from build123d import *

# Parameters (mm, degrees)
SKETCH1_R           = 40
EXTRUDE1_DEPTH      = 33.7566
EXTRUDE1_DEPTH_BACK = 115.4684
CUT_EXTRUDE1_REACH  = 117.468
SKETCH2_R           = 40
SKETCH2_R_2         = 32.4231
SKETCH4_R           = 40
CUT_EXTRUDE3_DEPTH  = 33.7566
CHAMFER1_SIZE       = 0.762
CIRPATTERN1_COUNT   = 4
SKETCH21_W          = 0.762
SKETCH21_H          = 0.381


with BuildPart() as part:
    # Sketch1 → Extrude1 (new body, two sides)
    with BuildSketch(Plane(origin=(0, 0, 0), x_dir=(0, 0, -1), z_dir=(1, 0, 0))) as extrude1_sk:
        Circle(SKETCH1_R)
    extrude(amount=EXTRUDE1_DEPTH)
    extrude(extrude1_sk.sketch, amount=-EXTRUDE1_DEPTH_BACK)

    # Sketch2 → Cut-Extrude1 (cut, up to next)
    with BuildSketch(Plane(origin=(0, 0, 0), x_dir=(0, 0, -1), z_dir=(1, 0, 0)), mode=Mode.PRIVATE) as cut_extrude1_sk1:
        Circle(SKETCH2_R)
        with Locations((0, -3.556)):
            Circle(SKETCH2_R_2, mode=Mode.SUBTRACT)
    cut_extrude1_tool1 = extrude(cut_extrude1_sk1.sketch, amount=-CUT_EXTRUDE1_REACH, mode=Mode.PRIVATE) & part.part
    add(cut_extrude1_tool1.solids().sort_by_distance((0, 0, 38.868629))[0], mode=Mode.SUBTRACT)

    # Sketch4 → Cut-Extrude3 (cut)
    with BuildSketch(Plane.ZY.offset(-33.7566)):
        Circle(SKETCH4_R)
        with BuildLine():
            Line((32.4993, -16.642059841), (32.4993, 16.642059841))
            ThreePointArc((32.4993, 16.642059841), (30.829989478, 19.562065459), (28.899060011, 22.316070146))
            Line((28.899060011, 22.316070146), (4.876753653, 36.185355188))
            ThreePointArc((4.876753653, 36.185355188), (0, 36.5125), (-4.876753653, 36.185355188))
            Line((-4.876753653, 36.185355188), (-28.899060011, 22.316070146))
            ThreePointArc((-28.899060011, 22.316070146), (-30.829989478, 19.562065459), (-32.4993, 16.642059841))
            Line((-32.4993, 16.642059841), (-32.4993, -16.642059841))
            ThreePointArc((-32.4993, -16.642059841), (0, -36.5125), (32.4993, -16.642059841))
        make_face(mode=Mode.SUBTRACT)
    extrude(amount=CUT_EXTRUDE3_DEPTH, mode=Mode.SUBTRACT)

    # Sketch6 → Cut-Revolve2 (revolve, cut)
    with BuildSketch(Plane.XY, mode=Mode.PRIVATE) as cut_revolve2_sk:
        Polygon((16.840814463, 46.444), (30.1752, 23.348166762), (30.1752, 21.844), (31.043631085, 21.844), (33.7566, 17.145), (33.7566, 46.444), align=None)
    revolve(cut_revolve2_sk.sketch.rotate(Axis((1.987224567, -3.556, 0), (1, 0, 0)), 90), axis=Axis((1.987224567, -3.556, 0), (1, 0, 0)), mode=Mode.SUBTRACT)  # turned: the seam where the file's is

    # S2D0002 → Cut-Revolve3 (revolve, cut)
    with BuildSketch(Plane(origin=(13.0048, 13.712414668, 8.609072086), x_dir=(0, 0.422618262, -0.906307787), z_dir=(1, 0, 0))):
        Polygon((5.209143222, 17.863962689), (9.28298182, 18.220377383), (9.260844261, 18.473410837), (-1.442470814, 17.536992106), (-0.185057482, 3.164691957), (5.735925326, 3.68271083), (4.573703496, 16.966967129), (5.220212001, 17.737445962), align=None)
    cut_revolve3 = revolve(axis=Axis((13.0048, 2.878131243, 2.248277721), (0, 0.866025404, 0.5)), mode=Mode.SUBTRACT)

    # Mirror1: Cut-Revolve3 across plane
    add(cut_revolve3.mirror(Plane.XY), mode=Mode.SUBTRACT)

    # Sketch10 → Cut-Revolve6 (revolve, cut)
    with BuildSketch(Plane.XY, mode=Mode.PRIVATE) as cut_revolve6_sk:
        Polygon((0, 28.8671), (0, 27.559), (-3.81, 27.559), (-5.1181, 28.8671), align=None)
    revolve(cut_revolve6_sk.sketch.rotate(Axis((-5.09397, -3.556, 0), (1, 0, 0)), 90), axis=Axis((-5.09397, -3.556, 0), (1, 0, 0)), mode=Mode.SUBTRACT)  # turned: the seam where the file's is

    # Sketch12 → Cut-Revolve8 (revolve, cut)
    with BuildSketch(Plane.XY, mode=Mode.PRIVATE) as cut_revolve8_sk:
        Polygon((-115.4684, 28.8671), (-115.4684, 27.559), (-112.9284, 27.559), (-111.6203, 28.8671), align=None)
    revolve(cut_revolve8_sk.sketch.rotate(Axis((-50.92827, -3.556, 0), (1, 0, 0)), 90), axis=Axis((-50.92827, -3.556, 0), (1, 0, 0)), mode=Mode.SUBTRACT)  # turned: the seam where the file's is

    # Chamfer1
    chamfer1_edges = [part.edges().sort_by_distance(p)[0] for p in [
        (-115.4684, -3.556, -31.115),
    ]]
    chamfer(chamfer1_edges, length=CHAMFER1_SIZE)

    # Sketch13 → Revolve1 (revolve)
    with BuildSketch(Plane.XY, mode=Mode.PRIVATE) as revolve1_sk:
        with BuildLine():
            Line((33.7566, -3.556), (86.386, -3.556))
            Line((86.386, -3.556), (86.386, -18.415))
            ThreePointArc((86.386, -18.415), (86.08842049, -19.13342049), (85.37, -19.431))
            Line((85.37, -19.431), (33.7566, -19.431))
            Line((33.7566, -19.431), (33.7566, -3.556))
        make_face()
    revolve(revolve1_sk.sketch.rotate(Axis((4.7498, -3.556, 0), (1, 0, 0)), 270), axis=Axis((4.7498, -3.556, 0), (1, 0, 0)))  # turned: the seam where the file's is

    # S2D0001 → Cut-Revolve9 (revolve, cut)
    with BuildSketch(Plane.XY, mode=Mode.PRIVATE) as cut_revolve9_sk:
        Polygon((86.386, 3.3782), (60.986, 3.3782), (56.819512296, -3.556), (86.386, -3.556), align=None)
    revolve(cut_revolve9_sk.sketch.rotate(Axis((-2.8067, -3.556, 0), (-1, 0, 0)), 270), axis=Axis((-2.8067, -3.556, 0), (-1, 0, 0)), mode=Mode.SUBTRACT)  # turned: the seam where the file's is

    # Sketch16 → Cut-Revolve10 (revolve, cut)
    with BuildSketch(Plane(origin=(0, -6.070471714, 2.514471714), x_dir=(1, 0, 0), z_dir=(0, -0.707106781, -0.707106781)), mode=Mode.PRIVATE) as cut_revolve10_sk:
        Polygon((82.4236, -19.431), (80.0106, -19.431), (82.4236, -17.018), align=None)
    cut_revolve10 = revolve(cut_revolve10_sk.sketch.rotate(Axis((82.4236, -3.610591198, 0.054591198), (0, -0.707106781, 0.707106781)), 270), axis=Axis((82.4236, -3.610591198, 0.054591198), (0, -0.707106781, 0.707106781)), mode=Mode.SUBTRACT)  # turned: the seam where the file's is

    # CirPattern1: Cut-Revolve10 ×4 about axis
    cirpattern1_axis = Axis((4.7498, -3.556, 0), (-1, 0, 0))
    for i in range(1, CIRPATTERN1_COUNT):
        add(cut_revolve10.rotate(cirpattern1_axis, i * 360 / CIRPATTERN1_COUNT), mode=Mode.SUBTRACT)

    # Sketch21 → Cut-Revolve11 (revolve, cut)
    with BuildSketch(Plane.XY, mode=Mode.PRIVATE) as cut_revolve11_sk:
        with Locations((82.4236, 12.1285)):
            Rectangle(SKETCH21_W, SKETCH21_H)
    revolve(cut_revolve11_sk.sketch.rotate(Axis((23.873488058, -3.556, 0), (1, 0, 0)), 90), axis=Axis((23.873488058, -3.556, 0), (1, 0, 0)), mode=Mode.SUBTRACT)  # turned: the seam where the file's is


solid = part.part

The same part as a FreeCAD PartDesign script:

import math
import FreeCAD as App
import Part
import Sketcher

V = App.Vector
Q = App.Units.Quantity


def edges_at(feature, points):
    """Names of the edges that pass closest to the given points."""
    edges = feature.Shape.Edges
    near = lambda p: min(range(len(edges)), key=lambda i: edges[i].distToShape(Part.Vertex(*p))[0])
    return sorted({f"Edge{near(p) + 1}" for p in points})


def add_polygon(sketch, points):
    """Adds a closed chain of lines whose ends are joined by coincident constraints."""
    first, n = sketch.GeometryCount, len(points)
    for a, b in zip(points, points[1:] + points[:1]):
        sketch.addGeometry(Part.LineSegment(App.Vector(*a, 0), App.Vector(*b, 0)), False)
    for i in range(n):
        sketch.addConstraint(Sketcher.Constraint("Coincident", first + i, 2, first + (i + 1) % n, 1))

doc = App.newDocument("Part")
params = doc.addObject("Spreadsheet::Sheet", "Params")
for row, (alias, value) in enumerate([
    ("pad1_length", "1.329 in"),
    ("pad1_length2", "4.546 in"),
    ("sketch2_diameter", "2.553 in"),
    ("sketch3_radius", "1.4375 in"),
    ("pocket2_length", "1.329 in"),
    ("groove_angle", "360 deg"),
    ("sketch5_length", "0.01 in"),
    ("sketch5_length2", "0.161 in"),
    ("sketch5_length3", "0.423 in"),
    ("sketch5_length4", "0.568 in"),
    ("sketch5_length5", "0.234 in"),
    ("groove2_angle", "360 deg"),
    ("sketch6_width", "0.15 in"),
    ("groove3_angle", "360 deg"),
    ("sketch7_width", "0.1 in"),
    ("groove4_angle", "360 deg"),
    ("chamfer_size", "0.03 in"),
    ("sketch8_radius", "0.04 in"),
    ("sketch8_height", "0.625 in"),
    ("revolution_angle", "360 deg"),
    ("sketch9_width", "1 in"),
    ("sketch9_height", "0.273 in"),
    ("groove5_angle", "360 deg"),
    ("sketch10_width", "0.095 in"),
    ("groove6_angle", "360 deg"),
    ("sketch11_width", "0.03 in"),
    ("sketch11_height", "0.015 in"),
    ("groove7_angle", "360 deg"),
], start=1):
    params.set(f"A{row}", alias)
    params.set(f"B{row}", "=" + value)
    params.setAlias(f"B{row}", alias)

body = doc.addObject("PartDesign::Body", "Body")

# Sketch on YZ plane
sketch1 = body.newObject("Sketcher::SketchObject", "Sketch")
sketch1.AttachmentSupport = (doc.getObject("YZ_Plane"), [""])
sketch1.MapMode = "FlatFace"
sketch1.addGeometry(Part.Circle(V(0, 0, 0), V(0, 0, 1), 40), False)
sketch1.addConstraint([
    Sketcher.Constraint("Coincident", 0, 3, -1, 1),
    Sketcher.Constraint("Diameter", 0, Q("80 mm")),
])
pad1 = body.newObject("PartDesign::Pad", "Pad")
pad1.Profile = sketch1
pad1.Type = "TwoLengths"
pad1.setExpression("Length", "Params.pad1_length")
pad1.setExpression("Length2", "Params.pad1_length2")

# Sketch on YZ plane
sketch2 = body.newObject("Sketcher::SketchObject", "Sketch001")
sketch2.AttachmentSupport = (doc.getObject("YZ_Plane"), [""])
sketch2.MapMode = "FlatFace"
sketch2.addGeometry([
    Part.Circle(V(0, 0, 0), V(0, 0, 1), 40),
    Part.Circle(V(-4, 0, 0), V(0, 0, 1), 32),
], False)
sketch2.addConstraint([
    Sketcher.Constraint("Coincident", 0, 3, -1, 1),
    Sketcher.Constraint("PointOnObject", 1, 3, -1),
    Sketcher.Constraint("Diameter", 1, Q("2.553 in")),
    Sketcher.Constraint("Diameter", 0, Q("80 mm")),
    Sketcher.Constraint("DistanceX", 1, 3, -1, 1, Q("0.14 in")),
])
sketch2.setExpression("Constraints[2]", "Params.sketch2_diameter")
pocket1 = body.newObject("PartDesign::Pocket", "Pocket")
pocket1.Profile = sketch2
pocket1.Type = "UpToFirst"

# Sketch on YZ plane
sketch3 = body.newObject("Sketcher::SketchObject", "Sketch002")
sketch3.AttachmentSupport = (doc.getObject("YZ_Plane"), [""])
sketch3.MapMode = "FlatFace"
sketch3.AttachmentOffset = App.Placement(V(0, 0, 1.329 * 25.4), App.Rotation())
sketch3.addGeometry([
    Part.Circle(V(0, 0, 0), V(0, 0, 1), 40),  # 0
    Part.LineSegment(V(17, 32, 0), V(-17, 32, 0)),  # 1
    Part.ArcOfCircle(Part.Circle(V(0, 0, 0), V(0, 0, 1), 37), math.radians(117), math.radians(243)),  # 2
    Part.LineSegment(V(-17, -32, 0), V(17, -32, 0)),  # 3
    Part.ArcOfCircle(Part.Circle(V(0, 0, 0), V(0, 0, 1), 37), math.radians(-62.88), math.radians(-52.32)),  # 4
    Part.LineSegment(V(22, -29, 0), V(36, -5, 0)),  # 5
    Part.ArcOfCircle(Part.Circle(V(0, 0, 0), V(0, 0, 1), 37), math.radians(-7.68), math.radians(7.68)),  # 6
    Part.LineSegment(V(36, 5, 0), V(22, 29, 0)),  # 7
    Part.ArcOfCircle(Part.Circle(V(0, 0, 0), V(0, 0, 1), 37), math.radians(52.32), math.radians(62.88)),  # 8
], False)
sketch3.addConstraint([
    Sketcher.Constraint("Coincident", 1, 2, 2, 1),
    Sketcher.Constraint("Coincident", 2, 2, 3, 1),
    Sketcher.Constraint("Coincident", 3, 2, 4, 1),
    Sketcher.Constraint("Coincident", 4, 2, 5, 1),
    Sketcher.Constraint("Coincident", 5, 2, 6, 1),
    Sketcher.Constraint("Coincident", 6, 2, 7, 1),
    Sketcher.Constraint("Coincident", 7, 2, 8, 1),
    Sketcher.Constraint("Coincident", 8, 2, 1, 1),
    Sketcher.Constraint("Horizontal", 1),
    Sketcher.Constraint("Horizontal", 3),
    Sketcher.Constraint("Coincident", 0, 3, -1, 1),
    Sketcher.Constraint("Coincident", 2, 3, -1, 1),
    Sketcher.Constraint("Coincident", 4, 3, -1, 1),
    Sketcher.Constraint("Coincident", 6, 3, -1, 1),
    Sketcher.Constraint("Coincident", 8, 3, -1, 1),
    Sketcher.Constraint("Equal", 2, 4),
    Sketcher.Constraint("Equal", 4, 6),
    Sketcher.Constraint("Equal", 6, 8),
    Sketcher.Constraint("Vertical", 1, 2, 2, 2),
    Sketcher.Constraint("Vertical", 5, 2, 6, 2),
    Sketcher.Constraint("Vertical", 4, 2, 7, 2),
    Sketcher.Constraint("Angle", 5, Q("60 deg")),
    Sketcher.Constraint("Radius", 2, Q("1.4375 in")),
    Sketcher.Constraint("Diameter", 0, Q("80 mm")),
    Sketcher.Constraint("DistanceY", -1, 1, 1, 2, Q("1.2795 in")),
    Sketcher.Constraint("Distance", 5, Q("27.73857 mm")),
])
sketch3.setExpression("Constraints[22]", "Params.sketch3_radius")
pocket2 = body.newObject("PartDesign::Pocket", "Pocket001")
pocket2.Profile = sketch3
pocket2.setExpression("Length", "Params.pocket2_length")

# Sketch on XY plane
sketch4 = body.newObject("Sketcher::SketchObject", "Sketch003")
sketch4.AttachmentSupport = (doc.getObject("XY_Plane"), [""])
sketch4.MapMode = "FlatFace"
add_polygon(sketch4, [(16.8, 46.4), (30.2, 23.3), (30.2, 21.8), (31, 21.8), (33.8, 17.1), (33.8, 46.4)])  # lines 0-5
sketch4.addGeometry(Part.LineSegment(V(16.8, -3.6, 0), V(33.8, -3.6, 0)), True)  # axis
sketch4.addConstraint([
    Sketcher.Constraint("Vertical", 1),
    Sketcher.Constraint("Horizontal", 2),
    Sketcher.Constraint("Vertical", 4),
    Sketcher.Constraint("Horizontal", 5),
    Sketcher.Constraint("Horizontal", 6),
    Sketcher.Constraint("Parallel", 0, 3),
    Sketcher.Constraint("Vertical", 5, 2, 6, 1),
    Sketcher.Constraint("Vertical", 4, 2, 6, 2),
    Sketcher.Constraint("Angle", 0, Q("-60 deg")),
    Sketcher.Constraint("DistanceY", 6, 1, 1, 2, Q("1 in")),
    Sketcher.Constraint("DistanceY", -1, 1, 1, 2, Q("0.86 in")),
    Sketcher.Constraint("DistanceX", -1, 1, 0, 2, Q("1.188 in")),
    Sketcher.Constraint("DistanceX", -1, 1, 3, 2, Q("1.329 in")),
    Sketcher.Constraint("DistanceY", -1, 1, 3, 2, Q("0.675 in")),
    Sketcher.Constraint("DistanceY", 4, 1, 4, 2, Q("29.299 mm")),
    Sketcher.Constraint("Distance", 0, Q("26.668771 mm")),
])
groove = body.newObject("PartDesign::Groove", "Groove")
groove.Profile = sketch4
groove.ReferenceAxis = (sketch4, ["Axis0"])
groove.setExpression("Angle", "Params.groove_angle")

# Sketch on YZ plane
sketch5 = body.newObject("Sketcher::SketchObject", "Sketch004")
sketch5.AttachmentSupport = (doc.getObject("YZ_Plane"), [""])
sketch5.MapMode = "FlatFace"
sketch5.AttachmentOffset = App.Placement(V(0, 0, 0.512 * 25.4), App.Rotation())
add_polygon(sketch5, [(32.1, 11.44), (34.15, 7.9), (34.37, 8.02), (29, 17.33), (16.5, 10.11), (19.47, 4.97), (31.02, 11.63), (31.99, 11.37)])  # lines 0-7
sketch5.addGeometry(Part.LineSegment(V(16.5, 10.11, 0), V(29, 17.33, 0)), True)  # axis
sketch5.addConstraint([
    Sketcher.Constraint("Coincident", 8, 1, 3, 2),
    Sketcher.Constraint("Coincident", 8, 2, 2, 2),
    Sketcher.Constraint("Perpendicular", 0, 1),
    Sketcher.Constraint("Perpendicular", 1, 2),
    Sketcher.Constraint("Perpendicular", 2, 3),
    Sketcher.Constraint("Perpendicular", 3, 4),
    Sketcher.Constraint("Perpendicular", 4, 5),
    Sketcher.Constraint("Parallel", 5, 7),
    Sketcher.Constraint("Angle", 0, Q("-60 deg")),
    Sketcher.Constraint("Angle", 6, Q("-15 deg")),
    Sketcher.Constraint("Distance", 1, Q("0.01 in")),
    Sketcher.Constraint("Distance", 0, Q("0.161 in")),
    Sketcher.Constraint("Distance", 2, Q("0.423 in")),
    Sketcher.Constraint("Distance", 3, Q("0.568 in")),
    Sketcher.Constraint("Distance", 4, Q("0.234 in")),
    Sketcher.Constraint("Distance", 5, Q("0.525 in")),
    Sketcher.Constraint("DistanceY", -1, 1, 6, 2, Q("0.4478001 in")),
    Sketcher.Constraint("DistanceX", -1, 1, 3, 2, Q("16.502391 mm")),
])
sketch5.setExpression("Constraints[18]", "Params.sketch5_length")
sketch5.setExpression("Constraints[19]", "Params.sketch5_length2")
sketch5.setExpression("Constraints[20]", "Params.sketch5_length3")
sketch5.setExpression("Constraints[21]", "Params.sketch5_length4")
sketch5.setExpression("Constraints[22]", "Params.sketch5_length5")
groove2 = body.newObject("PartDesign::Groove", "Groove001")
groove2.Profile = sketch5
groove2.ReferenceAxis = (sketch5, ["Axis0"])
groove2.setExpression("Angle", "Params.groove2_angle")
doc.recompute()

mirrored = body.newObject("PartDesign::Mirrored", "Mirrored")
mirrored.Originals = [groove2]
mirrored.MirrorPlane = (doc.getObject("XY_Plane"), [""])
body.Tip = mirrored

# Sketch on XY plane
sketch6 = body.newObject("Sketcher::SketchObject", "Sketch005")
sketch6.AttachmentSupport = (doc.getObject("XY_Plane"), [""])
sketch6.MapMode = "FlatFace"
add_polygon(sketch6, [(0, 27.6), (0, 28.9), (-5.1, 28.9), (-3.8, 27.6)])  # lines 0-3
sketch6.addGeometry(Part.LineSegment(V(-5.1, -3.6, 0), V(0, -3.6, 0)), True)  # axis
sketch6.addConstraint([
    Sketcher.Constraint("Vertical", 0),
    Sketcher.Constraint("Horizontal", 1),
    Sketcher.Constraint("Horizontal", 3),
    Sketcher.Constraint("Horizontal", 4),
    Sketcher.Constraint("PointOnObject", 0, 2, -2),
    Sketcher.Constraint("PointOnObject", 4, 2, -2),
    Sketcher.Constraint("Vertical", 1, 2, 4, 1),
    Sketcher.Constraint("Angle", 2, Q("-45 deg")),
    Sketcher.Constraint("DistanceX", 3, 1, 3, 2, Q("0.15 in")),
    Sketcher.Constraint("DistanceY", 4, 1, -1, 1, Q("0.14 in")),
    Sketcher.Constraint("DistanceX", 1, 2, 1, 1, Q("0.2015 in")),
    Sketcher.Constraint("DistanceY", -1, 1, 2, 2, Q("1.085 in")),
])
sketch6.setExpression("Constraints[12]", "Params.sketch6_width")
groove3 = body.newObject("PartDesign::Groove", "Groove002")
groove3.Profile = sketch6
groove3.ReferenceAxis = (sketch6, ["Axis0"])
groove3.setExpression("Angle", "Params.groove3_angle")

# Sketch on XY plane
sketch7 = body.newObject("Sketcher::SketchObject", "Sketch006")
sketch7.AttachmentSupport = (doc.getObject("XY_Plane"), [""])
sketch7.MapMode = "FlatFace"
add_polygon(sketch7, [(-115.5, 28.9), (-115.5, 27.6), (-112.9, 27.6), (-111.6, 28.9)])  # lines 0-3
sketch7.addGeometry(Part.LineSegment(V(-115.5, -3.6, 0), V(-111.6, -3.6, 0)), True)  # axis
sketch7.addConstraint([
    Sketcher.Constraint("Vertical", 0),
    Sketcher.Constraint("Horizontal", 1),
    Sketcher.Constraint("Horizontal", 3),
    Sketcher.Constraint("Horizontal", 4),
    Sketcher.Constraint("Vertical", 3, 2, 4, 1),
    Sketcher.Constraint("Vertical", 2, 2, 4, 2),
    Sketcher.Constraint("DistanceX", 1, 1, 1, 2, Q("0.1 in")),
    Sketcher.Constraint("Angle", 2, Q("45 deg")),
    Sketcher.Constraint("DistanceY", 4, 1, -1, 1, Q("0.14 in")),
    Sketcher.Constraint("DistanceX", 3, 2, 3, 1, Q("0.1515 in")),
    Sketcher.Constraint("DistanceX", 0, 2, -1, 1, Q("4.546 in")),
    Sketcher.Constraint("DistanceY", -1, 1, 0, 2, Q("1.085 in")),
])
sketch7.setExpression("Constraints[10]", "Params.sketch7_width")
groove4 = body.newObject("PartDesign::Groove", "Groove003")
groove4.Profile = sketch7
groove4.ReferenceAxis = (sketch7, ["Axis0"])
groove4.setExpression("Angle", "Params.groove4_angle")
doc.recompute()

chamfer = body.newObject("PartDesign::Chamfer", "Chamfer")
chamfer.Base = (groove4, edges_at(groove4, [(-115.468, -3.556, -31.115)]))
chamfer.setExpression("Size", "Params.chamfer_size")

# Sketch on XY plane
sketch8 = body.newObject("Sketcher::SketchObject", "Sketch007")
sketch8.AttachmentSupport = (doc.getObject("XY_Plane"), [""])
sketch8.MapMode = "FlatFace"
sketch8.addGeometry([
    Part.LineSegment(V(86.4, -3.6, 0), V(33.8, -3.6, 0)),  # 0
    Part.LineSegment(V(33.8, -3.6, 0), V(33.8, -19.4, 0)),  # 1
    Part.LineSegment(V(33.8, -19.4, 0), V(85.4, -19.4, 0)),  # 2
    Part.ArcOfCircle(Part.Circle(V(85.4, -18.4, 0), V(0, 0, 1), 1), math.radians(-90), math.radians(0)),  # 3
    Part.LineSegment(V(86.4, -18.4, 0), V(86.4, -3.6, 0)),  # 4
], False)
sketch8.addGeometry(Part.LineSegment(V(33.8, -3.6, 0), V(86.4, -3.6, 0)), True)  # axis
sketch8.addConstraint([
    Sketcher.Constraint("Coincident", 0, 2, 1, 1),
    Sketcher.Constraint("Coincident", 1, 2, 2, 1),
    Sketcher.Constraint("Tangent", 2, 2, 3, 1),
    Sketcher.Constraint("Tangent", 3, 2, 4, 1),
    Sketcher.Constraint("Coincident", 4, 2, 0, 1),
    Sketcher.Constraint("Horizontal", 0),
    Sketcher.Constraint("Vertical", 1),
    Sketcher.Constraint("Horizontal", 2),
    Sketcher.Constraint("Vertical", 4),
    Sketcher.Constraint("Horizontal", 5),
    Sketcher.Constraint("Coincident", 5, 1, 0, 2),
    Sketcher.Constraint("Vertical", 3, 2, 5, 2),
    Sketcher.Constraint("Radius", 3, Q("0.04 in")),
    Sketcher.Constraint("DistanceY", 1, 2, 1, 1, Q("0.625 in")),
    Sketcher.Constraint("DistanceY", 0, 2, -1, 1, Q("0.14 in")),
    Sketcher.Constraint("DistanceX", -1, 1, 0, 2, Q("1.329 in")),
    Sketcher.Constraint("DistanceX", 0, 2, 0, 1, Q("52.6294 mm")),
])
sketch8.setExpression("Constraints[12]", "Params.sketch8_radius")
sketch8.setExpression("Constraints[13]", "Params.sketch8_height")
revolution = body.newObject("PartDesign::Revolution", "Revolution")
revolution.Profile = sketch8
revolution.ReferenceAxis = (sketch8, ["Axis0"])
revolution.setExpression("Angle", "Params.revolution_angle")

# Sketch on XY plane
sketch9 = body.newObject("Sketcher::SketchObject", "Sketch008")
sketch9.AttachmentSupport = (doc.getObject("XY_Plane"), [""])
sketch9.MapMode = "FlatFace"
add_polygon(sketch9, [(86, 3), (61, 3), (57, -4), (86, -4)])  # lines 0-3
sketch9.addGeometry(Part.LineSegment(V(86, -4, 0), V(57, -4, 0)), True)  # axis
sketch9.addConstraint([
    Sketcher.Constraint("Horizontal", 0),
    Sketcher.Constraint("Horizontal", 2),
    Sketcher.Constraint("Vertical", 3),
    Sketcher.Constraint("Horizontal", 4),
    Sketcher.Constraint("Coincident", 4, 1, 2, 2),
    Sketcher.Constraint("Equal", 2, 4),
    Sketcher.Constraint("DistanceX", 0, 2, 0, 1, Q("1 in")),
    Sketcher.Constraint("Angle", 1, Q("-121 deg")),
    Sketcher.Constraint("DistanceY", 3, 1, 3, 2, Q("0.273 in")),
    Sketcher.Constraint("DistanceY", 1, 2, -1, 1, Q("0.14 in")),
    Sketcher.Constraint("DistanceX", -1, 1, 0, 2, Q("60.986 mm")),
])
sketch9.setExpression("Constraints[10]", "Params.sketch9_width")
sketch9.setExpression("Constraints[12]", "Params.sketch9_height")
groove5 = body.newObject("PartDesign::Groove", "Groove004")
groove5.Profile = sketch9
groove5.ReferenceAxis = (sketch9, ["Axis0"])
groove5.setExpression("Angle", "Params.groove5_angle")

# Sketch on an angled plane
sketch10 = body.newObject("Sketcher::SketchObject", "Sketch009")
sketch10.Placement = App.Placement(V(0, -6.070472, 2.514472), App.Rotation(V(1, 0, 0), V(0, -0.707106781, 0.707106781), V(0, -0.707106781, -0.707106781), "ZXY"))
add_polygon(sketch10, [(80, -19.4), (82.4, -19.4), (82.4, -17)])  # lines 0-2
sketch10.addGeometry(Part.LineSegment(V(82.4, -19.4, 0), V(82.4, -17, 0)), True)  # axis
sketch10.addConstraint([
    Sketcher.Constraint("Horizontal", 0),
    Sketcher.Constraint("Vertical", 1),
    Sketcher.Constraint("Vertical", 3),
    Sketcher.Constraint("Coincident", 3, 1, 0, 2),
    Sketcher.Constraint("Equal", 0, 1),
    Sketcher.Constraint("Equal", 1, 3),
    Sketcher.Constraint("DistanceX", 0, 1, 0, 2, Q("0.095 in")),
    Sketcher.Constraint("DistanceY", 1, 2, -1, 1, Q("0.67 in")),
    Sketcher.Constraint("DistanceX", -1, 1, 0, 2, Q("82.4236 mm")),
])
sketch10.setExpression("Constraints[9]", "Params.sketch10_width")
groove6 = body.newObject("PartDesign::Groove", "Groove005")
groove6.Profile = sketch10
groove6.ReferenceAxis = (sketch10, ["Axis0"])
groove6.setExpression("Angle", "Params.groove6_angle")
doc.recompute()

datumline = body.newObject("PartDesign::Line", "DatumLine")
datumline.Placement = App.Placement(V(0, -3.556, 0), App.Rotation(V(0, 0, 1), V(-1, 0, 0)))
polarpattern = body.newObject("PartDesign::PolarPattern", "PolarPattern")
polarpattern.Originals = [groove6]
polarpattern.Axis = (datumline, [""])
polarpattern.Angle = 360
polarpattern.Occurrences = 4
body.Tip = polarpattern

# Sketch on XY plane
sketch11 = body.newObject("Sketcher::SketchObject", "Sketch010")
sketch11.AttachmentSupport = (doc.getObject("XY_Plane"), [""])
sketch11.MapMode = "FlatFace"
add_polygon(sketch11, [(82.04, 12.32), (82.04, 11.94), (82.8, 11.94), (82.8, 12.32)])  # lines 0-3
sketch11.addGeometry(Part.LineSegment(V(82.04, -3.56, 0), V(82.8, -3.56, 0)), True)  # axis
sketch11.addConstraint([
    Sketcher.Constraint("Vertical", 0),
    Sketcher.Constraint("Horizontal", 1),
    Sketcher.Constraint("Vertical", 2),
    Sketcher.Constraint("Horizontal", 3),
    Sketcher.Constraint("Horizontal", 4),
    Sketcher.Constraint("Vertical", 3, 2, 4, 1),
    Sketcher.Constraint("Vertical", 2, 2, 4, 2),
    Sketcher.Constraint("DistanceX", 1, 1, 1, 2, Q("0.03 in")),
    Sketcher.Constraint("DistanceY", 0, 2, 0, 1, Q("0.015 in")),
    Sketcher.Constraint("DistanceY", -1, 1, 0, 2, Q("0.47 in")),
    Sketcher.Constraint("DistanceY", 4, 1, -1, 1, Q("0.14 in")),
    Sketcher.Constraint("DistanceX", -1, 1, 0, 2, Q("82.0426 mm")),
])
sketch11.setExpression("Constraints[11]", "Params.sketch11_width")
sketch11.setExpression("Constraints[12]", "Params.sketch11_height")
groove7 = body.newObject("PartDesign::Groove", "Groove006")
groove7.Profile = sketch11
groove7.ReferenceAxis = (sketch11, ["Axis0"])
groove7.setExpression("Angle", "Params.groove7_angle")

doc.recompute()
